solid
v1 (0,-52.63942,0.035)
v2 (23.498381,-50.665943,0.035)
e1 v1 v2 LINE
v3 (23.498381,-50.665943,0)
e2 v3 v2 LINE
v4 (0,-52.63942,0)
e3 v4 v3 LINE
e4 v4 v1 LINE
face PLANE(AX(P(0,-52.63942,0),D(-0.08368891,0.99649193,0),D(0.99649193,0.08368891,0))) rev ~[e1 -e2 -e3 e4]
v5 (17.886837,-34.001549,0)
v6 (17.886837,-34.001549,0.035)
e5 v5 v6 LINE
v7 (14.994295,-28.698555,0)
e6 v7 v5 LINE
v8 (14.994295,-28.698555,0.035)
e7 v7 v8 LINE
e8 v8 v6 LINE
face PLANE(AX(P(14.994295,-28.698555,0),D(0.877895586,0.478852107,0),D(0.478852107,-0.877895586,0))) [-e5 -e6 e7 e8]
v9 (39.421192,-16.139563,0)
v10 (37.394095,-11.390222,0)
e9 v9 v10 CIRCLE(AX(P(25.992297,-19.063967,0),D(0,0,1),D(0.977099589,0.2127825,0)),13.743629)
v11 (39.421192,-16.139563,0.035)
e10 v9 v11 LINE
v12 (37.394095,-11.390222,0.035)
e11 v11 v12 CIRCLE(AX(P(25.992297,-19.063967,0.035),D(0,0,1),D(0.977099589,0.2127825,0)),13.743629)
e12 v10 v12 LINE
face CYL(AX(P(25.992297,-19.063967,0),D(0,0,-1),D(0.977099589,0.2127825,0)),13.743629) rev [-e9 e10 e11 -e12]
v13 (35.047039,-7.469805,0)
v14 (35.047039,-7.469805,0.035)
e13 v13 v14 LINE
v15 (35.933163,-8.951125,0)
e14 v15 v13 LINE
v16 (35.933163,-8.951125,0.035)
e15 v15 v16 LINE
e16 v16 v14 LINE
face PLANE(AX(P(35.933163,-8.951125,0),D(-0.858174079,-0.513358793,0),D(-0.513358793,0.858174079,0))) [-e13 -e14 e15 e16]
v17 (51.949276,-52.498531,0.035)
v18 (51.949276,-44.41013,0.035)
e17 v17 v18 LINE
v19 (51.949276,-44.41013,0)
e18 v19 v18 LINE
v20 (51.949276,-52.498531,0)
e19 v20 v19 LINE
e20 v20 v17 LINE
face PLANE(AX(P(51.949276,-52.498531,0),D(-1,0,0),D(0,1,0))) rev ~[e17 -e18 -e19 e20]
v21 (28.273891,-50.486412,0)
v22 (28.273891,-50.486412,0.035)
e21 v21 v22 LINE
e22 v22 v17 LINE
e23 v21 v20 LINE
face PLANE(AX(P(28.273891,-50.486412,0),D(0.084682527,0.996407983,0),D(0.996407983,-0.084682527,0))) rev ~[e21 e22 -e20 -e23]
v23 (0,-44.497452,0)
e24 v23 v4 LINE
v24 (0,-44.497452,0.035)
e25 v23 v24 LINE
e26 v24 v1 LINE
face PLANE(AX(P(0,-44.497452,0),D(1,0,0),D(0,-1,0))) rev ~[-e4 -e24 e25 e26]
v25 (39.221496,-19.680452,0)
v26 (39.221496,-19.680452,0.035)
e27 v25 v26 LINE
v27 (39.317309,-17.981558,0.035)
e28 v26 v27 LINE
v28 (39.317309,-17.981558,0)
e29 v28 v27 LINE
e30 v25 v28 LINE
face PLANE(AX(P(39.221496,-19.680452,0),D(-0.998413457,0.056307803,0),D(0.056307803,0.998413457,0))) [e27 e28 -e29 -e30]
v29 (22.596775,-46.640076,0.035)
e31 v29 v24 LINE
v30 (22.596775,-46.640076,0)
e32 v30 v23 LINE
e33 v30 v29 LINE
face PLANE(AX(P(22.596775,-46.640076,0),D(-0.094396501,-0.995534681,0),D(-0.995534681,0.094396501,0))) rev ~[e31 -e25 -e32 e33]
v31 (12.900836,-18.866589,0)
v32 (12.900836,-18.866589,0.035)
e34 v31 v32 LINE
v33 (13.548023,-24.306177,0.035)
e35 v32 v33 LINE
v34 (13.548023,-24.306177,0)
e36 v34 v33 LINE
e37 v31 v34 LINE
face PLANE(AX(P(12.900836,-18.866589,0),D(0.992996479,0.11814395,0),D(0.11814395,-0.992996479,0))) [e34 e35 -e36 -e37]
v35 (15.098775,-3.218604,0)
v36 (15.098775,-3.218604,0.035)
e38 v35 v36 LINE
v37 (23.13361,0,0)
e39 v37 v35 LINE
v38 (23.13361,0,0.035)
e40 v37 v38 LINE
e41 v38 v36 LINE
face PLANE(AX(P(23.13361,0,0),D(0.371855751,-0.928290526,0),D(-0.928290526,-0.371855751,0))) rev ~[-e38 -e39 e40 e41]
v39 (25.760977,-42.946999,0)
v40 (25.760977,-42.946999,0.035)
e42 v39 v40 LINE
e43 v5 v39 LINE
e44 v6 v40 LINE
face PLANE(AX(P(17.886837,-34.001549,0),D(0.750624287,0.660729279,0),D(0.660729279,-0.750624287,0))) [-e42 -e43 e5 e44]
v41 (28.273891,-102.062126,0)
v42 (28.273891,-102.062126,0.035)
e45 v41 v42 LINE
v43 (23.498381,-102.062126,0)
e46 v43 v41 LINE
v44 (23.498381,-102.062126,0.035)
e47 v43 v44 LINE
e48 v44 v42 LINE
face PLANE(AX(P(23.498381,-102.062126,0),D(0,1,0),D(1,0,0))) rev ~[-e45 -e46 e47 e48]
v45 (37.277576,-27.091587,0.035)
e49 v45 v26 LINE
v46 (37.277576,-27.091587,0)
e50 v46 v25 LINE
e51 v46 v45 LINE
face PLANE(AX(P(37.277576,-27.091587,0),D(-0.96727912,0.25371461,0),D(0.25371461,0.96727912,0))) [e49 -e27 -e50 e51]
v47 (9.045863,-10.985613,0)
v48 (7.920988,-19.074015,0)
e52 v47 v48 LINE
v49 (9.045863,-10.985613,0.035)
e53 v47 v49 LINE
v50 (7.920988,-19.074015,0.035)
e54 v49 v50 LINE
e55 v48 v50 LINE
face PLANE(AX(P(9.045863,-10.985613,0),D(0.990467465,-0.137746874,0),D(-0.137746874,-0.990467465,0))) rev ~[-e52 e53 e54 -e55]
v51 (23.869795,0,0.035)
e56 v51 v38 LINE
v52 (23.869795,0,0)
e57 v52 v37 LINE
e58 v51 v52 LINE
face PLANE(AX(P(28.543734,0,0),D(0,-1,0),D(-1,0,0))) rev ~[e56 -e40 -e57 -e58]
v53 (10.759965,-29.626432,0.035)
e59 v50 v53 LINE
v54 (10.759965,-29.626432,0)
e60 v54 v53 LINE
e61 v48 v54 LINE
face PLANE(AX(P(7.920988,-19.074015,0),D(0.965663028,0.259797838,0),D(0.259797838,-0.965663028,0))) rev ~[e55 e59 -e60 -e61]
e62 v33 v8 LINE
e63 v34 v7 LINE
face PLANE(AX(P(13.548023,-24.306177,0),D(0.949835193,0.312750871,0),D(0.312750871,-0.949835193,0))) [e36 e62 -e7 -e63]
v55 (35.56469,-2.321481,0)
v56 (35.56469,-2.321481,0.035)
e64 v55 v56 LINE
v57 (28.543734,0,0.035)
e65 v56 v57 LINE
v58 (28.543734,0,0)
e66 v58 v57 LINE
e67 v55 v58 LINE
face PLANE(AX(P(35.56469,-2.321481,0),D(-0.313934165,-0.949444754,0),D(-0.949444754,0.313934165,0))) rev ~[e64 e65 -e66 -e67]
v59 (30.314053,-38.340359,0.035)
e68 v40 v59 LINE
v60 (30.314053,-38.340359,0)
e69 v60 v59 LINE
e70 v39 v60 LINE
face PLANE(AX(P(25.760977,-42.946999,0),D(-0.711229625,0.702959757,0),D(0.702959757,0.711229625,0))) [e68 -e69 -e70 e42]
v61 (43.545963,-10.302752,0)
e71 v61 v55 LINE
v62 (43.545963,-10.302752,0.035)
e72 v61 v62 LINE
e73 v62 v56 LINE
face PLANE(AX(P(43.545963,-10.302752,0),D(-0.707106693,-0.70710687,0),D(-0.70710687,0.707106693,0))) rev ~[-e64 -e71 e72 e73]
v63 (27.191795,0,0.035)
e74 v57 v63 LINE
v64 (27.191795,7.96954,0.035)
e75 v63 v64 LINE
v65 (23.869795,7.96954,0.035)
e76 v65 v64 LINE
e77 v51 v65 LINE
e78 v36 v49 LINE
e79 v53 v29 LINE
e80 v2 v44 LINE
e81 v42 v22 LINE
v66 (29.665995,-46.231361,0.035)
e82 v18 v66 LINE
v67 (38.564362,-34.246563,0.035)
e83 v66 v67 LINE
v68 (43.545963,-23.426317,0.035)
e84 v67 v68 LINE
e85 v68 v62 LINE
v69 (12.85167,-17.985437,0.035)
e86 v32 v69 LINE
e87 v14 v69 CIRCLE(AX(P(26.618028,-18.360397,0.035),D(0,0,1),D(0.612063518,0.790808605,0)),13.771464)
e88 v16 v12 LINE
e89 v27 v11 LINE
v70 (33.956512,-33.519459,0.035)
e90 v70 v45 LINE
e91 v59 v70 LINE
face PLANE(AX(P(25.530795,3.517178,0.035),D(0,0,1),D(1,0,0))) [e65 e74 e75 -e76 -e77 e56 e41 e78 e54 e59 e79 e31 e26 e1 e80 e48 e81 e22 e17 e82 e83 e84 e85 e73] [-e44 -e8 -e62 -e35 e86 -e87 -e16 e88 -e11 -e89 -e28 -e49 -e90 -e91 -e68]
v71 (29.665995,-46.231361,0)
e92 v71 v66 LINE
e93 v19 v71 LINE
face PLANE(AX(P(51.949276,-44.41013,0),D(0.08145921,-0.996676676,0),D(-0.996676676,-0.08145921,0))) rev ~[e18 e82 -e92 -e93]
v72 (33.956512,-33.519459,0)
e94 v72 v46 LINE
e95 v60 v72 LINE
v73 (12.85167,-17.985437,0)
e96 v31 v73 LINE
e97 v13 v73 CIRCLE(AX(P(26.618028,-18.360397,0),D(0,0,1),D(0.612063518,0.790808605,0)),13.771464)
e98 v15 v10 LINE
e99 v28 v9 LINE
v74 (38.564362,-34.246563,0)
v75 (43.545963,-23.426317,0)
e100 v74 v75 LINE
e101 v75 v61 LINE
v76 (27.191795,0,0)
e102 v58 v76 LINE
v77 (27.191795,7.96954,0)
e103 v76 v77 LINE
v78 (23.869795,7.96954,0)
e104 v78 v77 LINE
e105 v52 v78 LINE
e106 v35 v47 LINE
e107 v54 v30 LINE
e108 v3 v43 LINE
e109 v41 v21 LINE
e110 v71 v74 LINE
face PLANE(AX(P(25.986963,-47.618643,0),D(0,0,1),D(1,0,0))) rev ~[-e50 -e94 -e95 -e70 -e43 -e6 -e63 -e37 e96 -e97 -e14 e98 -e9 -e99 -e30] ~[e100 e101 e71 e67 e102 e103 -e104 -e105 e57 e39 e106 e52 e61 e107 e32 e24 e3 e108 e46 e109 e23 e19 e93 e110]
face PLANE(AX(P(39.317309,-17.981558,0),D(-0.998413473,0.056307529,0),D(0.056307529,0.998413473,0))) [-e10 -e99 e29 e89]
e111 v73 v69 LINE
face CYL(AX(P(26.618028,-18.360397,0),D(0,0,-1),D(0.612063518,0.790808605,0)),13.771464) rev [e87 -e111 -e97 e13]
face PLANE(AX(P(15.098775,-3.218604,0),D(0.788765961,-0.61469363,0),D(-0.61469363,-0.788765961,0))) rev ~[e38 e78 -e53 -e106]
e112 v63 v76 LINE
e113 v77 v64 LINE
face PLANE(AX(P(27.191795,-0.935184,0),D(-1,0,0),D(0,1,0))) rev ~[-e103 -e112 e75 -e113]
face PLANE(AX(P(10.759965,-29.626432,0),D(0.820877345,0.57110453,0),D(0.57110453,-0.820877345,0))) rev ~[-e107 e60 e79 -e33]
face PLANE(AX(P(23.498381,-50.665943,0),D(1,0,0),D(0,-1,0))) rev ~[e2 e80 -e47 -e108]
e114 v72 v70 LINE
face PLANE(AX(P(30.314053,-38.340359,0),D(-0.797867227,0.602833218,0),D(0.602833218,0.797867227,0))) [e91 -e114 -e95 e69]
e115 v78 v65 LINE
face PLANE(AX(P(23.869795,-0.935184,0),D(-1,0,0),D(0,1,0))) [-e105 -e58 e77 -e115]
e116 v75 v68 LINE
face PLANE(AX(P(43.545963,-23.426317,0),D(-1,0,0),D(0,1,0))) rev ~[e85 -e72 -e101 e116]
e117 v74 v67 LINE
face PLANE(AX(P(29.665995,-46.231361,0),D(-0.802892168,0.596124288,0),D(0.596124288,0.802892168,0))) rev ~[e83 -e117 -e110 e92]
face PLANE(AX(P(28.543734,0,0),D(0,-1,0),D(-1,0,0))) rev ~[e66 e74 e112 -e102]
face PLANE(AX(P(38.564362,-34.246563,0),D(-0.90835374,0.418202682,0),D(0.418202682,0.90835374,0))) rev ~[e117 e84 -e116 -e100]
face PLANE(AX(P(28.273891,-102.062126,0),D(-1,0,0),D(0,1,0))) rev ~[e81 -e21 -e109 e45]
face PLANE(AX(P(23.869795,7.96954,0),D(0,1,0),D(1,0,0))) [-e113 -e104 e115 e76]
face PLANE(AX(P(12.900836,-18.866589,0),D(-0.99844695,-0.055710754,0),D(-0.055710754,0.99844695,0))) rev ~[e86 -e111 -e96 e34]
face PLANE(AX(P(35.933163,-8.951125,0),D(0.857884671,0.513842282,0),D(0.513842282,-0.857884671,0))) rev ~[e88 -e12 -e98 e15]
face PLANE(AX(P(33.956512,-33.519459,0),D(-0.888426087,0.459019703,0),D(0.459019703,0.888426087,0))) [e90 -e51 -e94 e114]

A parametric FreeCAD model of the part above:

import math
import FreeCAD as App
import Part
import Sketcher
from FreeCAD import Vector
Q = App.Units.Quantity


def add_polygon(sketch, points):
    """Adds a closed chain of lines whose ends are joined by coincident constraints."""
    first, n = sketch.GeometryCount, len(points)
    for a, b in zip(points, points[1:] + points[:1]):
        sketch.addGeometry(Part.LineSegment(App.Vector(*a, 0), App.Vector(*b, 0)), False)
    for i in range(n):
        sketch.addConstraint(Sketcher.Constraint("Coincident", first + i, 2, first + (i + 1) % n, 1))

doc = App.newDocument("Part")
body = doc.addObject("PartDesign::Body", "Body")

# Sketch on XY plane
sketch1 = doc.addObject("Sketcher::SketchObject", "Sketch")
body.addObject(sketch1)
sketch1.AttachmentSupport = (doc.XY_Plane, [""])
sketch1.MapMode = "FlatFace"
add_polygon(sketch1, [(23.869795, 7.96954), (23.869795, -0.935184), (27.191795, -0.935184), (27.191795, 7.96954)])  # lines 0-3
sketch1.addConstraint(Sketcher.Constraint("Vertical", 0))
sketch1.addConstraint(Sketcher.Constraint("Horizontal", 1))
sketch1.addConstraint(Sketcher.Constraint("Vertical", 2))
sketch1.addConstraint(Sketcher.Constraint("Horizontal", 3))
sketch1.addConstraint(Sketcher.Constraint("DistanceX", 1, 1, 1, 2, 3.322))
sketch1.addConstraint(Sketcher.Constraint("DistanceY", 0, 2, 0, 1, 8.904724))
sketch1.addConstraint(Sketcher.Constraint("DistanceY", -1, 1, 2, 2, 7.96954))
sketch1.addConstraint(Sketcher.Constraint("DistanceX", -1, 1, 0, 2, 23.869795))
pad1 = doc.addObject("PartDesign::Pad", "Pad")
body.addObject(pad1)
pad1.Profile = sketch1
pad1.Length = 0.035
body2 = doc.addObject("PartDesign::Body", "Body001")

# Sketch on XY plane
sketch2 = doc.addObject("Sketcher::SketchObject", "Sketch001")
body2.addObject(sketch2)
sketch2.AttachmentSupport = (doc.getObject("XY_Plane001"), [""])
sketch2.MapMode = "FlatFace"
add_polygon(sketch2, [(23.498381, -102.062126), (28.273891, -102.062126), (28.273891, -50.486412), (51.949276, -52.498531), (51.949276, -44.41013), (29.665995, -46.231361), (38.564362, -34.246563), (43.545963, -23.426317), (43.545963, -10.302752), (35.56469, -2.321481), (28.543734, 0), (23.13361, 0), (15.098775, -3.218604), (9.045863, -10.985613), (7.920988, -19.074015), (10.759965, -29.626432), (22.596775, -46.640076), (0, -44.497452), (0, -52.63942), (23.498381, -50.665943)])  # lines 0-19
sketch2.addGeometry(Part.LineSegment(Vector(13.548023, -24.306177, 0), Vector(12.900836, -18.866589, 0)), False)  # 20
sketch2.addGeometry(Part.LineSegment(Vector(12.900836, -18.866589, 0), Vector(12.85167, -17.985437, 0)), False)  # 21
sketch2.addGeometry(Part.ArcOfCircle(Part.Circle(Vector(26.618028, -18.360397, 0), Vector(0, 0, 1), 13.771464), math.radians(52.261141), math.radians(178.439796)), False)  # 22
sketch2.addGeometry(Part.LineSegment(Vector(35.047039, -7.469805, 0), Vector(35.933163, -8.951125, 0)), False)  # 23
sketch2.addGeometry(Part.LineSegment(Vector(35.933163, -8.951125, 0), Vector(37.394095, -11.390222, 0)), False)  # 24
sketch2.addGeometry(Part.ArcOfCircle(Part.Circle(Vector(25.992297, -19.063967, 0), Vector(0, 0, 1), 13.743629), math.radians(12.285464), math.radians(33.941712)), False)  # 25
sketch2.addGeometry(Part.LineSegment(Vector(39.421192, -16.139563, 0), Vector(39.317309, -17.981558, 0)), False)  # 26
sketch2.addGeometry(Part.LineSegment(Vector(39.317309, -17.981558, 0), Vector(39.221496, -19.680452, 0)), False)  # 27
sketch2.addGeometry(Part.LineSegment(Vector(39.221496, -19.680452, 0), Vector(37.277576, -27.091587, 0)), False)  # 28
sketch2.addGeometry(Part.LineSegment(Vector(37.277576, -27.091587, 0), Vector(33.956512, -33.519459, 0)), False)  # 29
sketch2.addGeometry(Part.LineSegment(Vector(33.956512, -33.519459, 0), Vector(30.314053, -38.340359, 0)), False)  # 30
sketch2.addGeometry(Part.LineSegment(Vector(30.314053, -38.340359, 0), Vector(25.760977, -42.946999, 0)), False)  # 31
sketch2.addGeometry(Part.LineSegment(Vector(25.760977, -42.946999, 0), Vector(17.886837, -34.001549, 0)), False)  # 32
sketch2.addGeometry(Part.LineSegment(Vector(17.886837, -34.001549, 0), Vector(14.994295, -28.698555, 0)), False)  # 33
sketch2.addGeometry(Part.LineSegment(Vector(14.994295, -28.698555, 0), Vector(13.548023, -24.306177, 0)), False)  # 34
sketch2.addConstraint(Sketcher.Constraint("Coincident", 20, 2, 21, 1))
sketch2.addConstraint(Sketcher.Constraint("Coincident", 21, 2, 22, 2))
sketch2.addConstraint(Sketcher.Constraint("Coincident", 22, 1, 23, 1))
sketch2.addConstraint(Sketcher.Constraint("Coincident", 23, 2, 24, 1))
sketch2.addConstraint(Sketcher.Constraint("Coincident", 24, 2, 25, 2))
sketch2.addConstraint(Sketcher.Constraint("Coincident", 25, 1, 26, 1))
sketch2.addConstraint(Sketcher.Constraint("Coincident", 26, 2, 27, 1))
sketch2.addConstraint(Sketcher.Constraint("Coincident", 27, 2, 28, 1))
sketch2.addConstraint(Sketcher.Constraint("Coincident", 28, 2, 29, 1))
sketch2.addConstraint(Sketcher.Constraint("Coincident", 29, 2, 30, 1))
sketch2.addConstraint(Sketcher.Constraint("Coincident", 30, 2, 31, 1))
sketch2.addConstraint(Sketcher.Constraint("Coincident", 31, 2, 32, 1))
sketch2.addConstraint(Sketcher.Constraint("Coincident", 32, 2, 33, 1))
sketch2.addConstraint(Sketcher.Constraint("Coincident", 33, 2, 34, 1))
sketch2.addConstraint(Sketcher.Constraint("Coincident", 34, 2, 20, 1))
sketch2.addConstraint(Sketcher.Constraint("Horizontal", 0))
sketch2.addConstraint(Sketcher.Constraint("Vertical", 1))
sketch2.addConstraint(Sketcher.Constraint("Vertical", 3))
sketch2.addConstraint(Sketcher.Constraint("Vertical", 7))
sketch2.addConstraint(Sketcher.Constraint("Horizontal", 10))
sketch2.addConstraint(Sketcher.Constraint("Vertical", 17))
sketch2.addConstraint(Sketcher.Constraint("Vertical", 19))
sketch2.addConstraint(Sketcher.Constraint("PointOnObject", 9, 2, -1))
sketch2.addConstraint(Sketcher.Constraint("PointOnObject", 16, 2, -2))
sketch2.addConstraint(Sketcher.Constraint("Parallel", 26, 27))
sketch2.addConstraint(Sketcher.Constraint("Angle", 8, Q("135.000007 deg")))
sketch2.addConstraint(Sketcher.Constraint("Radius", 25, 13.743629))
sketch2.addConstraint(Sketcher.Constraint("DistanceY", 3, 1, 3, 2, 8.088401))
sketch2.addConstraint(Sketcher.Constraint("DistanceY", 31, 2, -1, 1, 42.946999))
sketch2.addConstraint(Sketcher.Constraint("Radius", 22, 13.771464))
sketch2.addConstraint(Sketcher.Constraint("DistanceX", 20, 2, 32, 2, 4.986001))
sketch2.addConstraint(Sketcher.Constraint("DistanceX", 0, 1, 0, 2, 4.77551))
sketch2.addConstraint(Sketcher.Constraint("DistanceX", 5, 2, 6, 2, 4.981601))
sketch2.addConstraint(Sketcher.Constraint("DistanceY", 13, 2, 12, 2, 8.088402))
sketch2.addConstraint(Sketcher.Constraint("DistanceX", 12, 2, 14, 2, 1.714102))
sketch2.addConstraint(Sketcher.Constraint("DistanceX", 23, 2, 7, 2, 7.6128))
sketch2.addConstraint(Sketcher.Constraint("DistanceX", 24, 2, 27, 2, 1.827401))
sketch2.addConstraint(Sketcher.Constraint("DistanceY", 27, 2, 7, 2, 9.3777))
sketch2.addConstraint(Sketcher.Constraint("DistanceY", 30, 2, 29, 2, 4.8209))
sketch2.addConstraint(Sketcher.Constraint("DistanceX", 15, 2, 31, 2, 3.164202))
sketch2.addConstraint(Sketcher.Constraint("Distance", 6, 11.91193))
sketch2.addConstraint(Sketcher.Constraint("Distance", 12, 9.847039))
sketch2.addConstraint(Sketcher.Constraint("Distance", 14, 10.927639))
sketch2.addConstraint(Sketcher.Constraint("Distance", 15, 20.726171))
sketch2.addConstraint(Sketcher.Constraint("Distance", 16, 22.698129))
sketch2.addConstraint(Sketcher.Constraint("Distance", 23, 1.72613))
sketch2.addConstraint(Sketcher.Constraint("Distance", 31, 6.477008))
sketch2.addConstraint(Sketcher.Constraint("Distance", 34, 4.624358))
sketch2.addConstraint(Sketcher.Constraint("DistanceX", 10, 2, 10, 1, 5.410124))
sketch2.addConstraint(Sketcher.Constraint("DistanceY", 1, 1, 1, 2, 51.575714))
sketch2.addConstraint(Sketcher.Constraint("DistanceY", 7, 1, 7, 2, 13.123565))
sketch2.addConstraint(Sketcher.Constraint("DistanceY", 17, 2, 17, 1, 8.141968))
sketch2.addConstraint(Sketcher.Constraint("DistanceY", 19, 2, 19, 1, 51.396183))
sketch2.addConstraint(Sketcher.Constraint("DistanceX", -1, 1, 22, 3, 26.618028))
sketch2.addConstraint(Sketcher.Constraint("DistanceX", -1, 1, 0, 2, 28.273891))
sketch2.addConstraint(Sketcher.Constraint("DistanceY", 2, 2, -1, 1, 52.498531))
sketch2.addConstraint(Sketcher.Constraint("DistanceY", 4, 2, -1, 1, 46.231361))
sketch2.addConstraint(Sketcher.Constraint("DistanceX", -1, 1, 8, 2, 35.56469))
sketch2.addConstraint(Sketcher.Constraint("DistanceY", 8, 2, -1, 1, 2.321481))
sketch2.addConstraint(Sketcher.Constraint("DistanceX", -1, 1, 10, 2, 23.13361))
sketch2.addConstraint(Sketcher.Constraint("DistanceX", -1, 1, 13, 2, 7.920988))
sketch2.addConstraint(Sketcher.Constraint("DistanceY", 17, 2, -1, 1, 52.63942))
sketch2.addConstraint(Sketcher.Constraint("DistanceY", 20, 2, -1, 1, 18.866589))
sketch2.addConstraint(Sketcher.Constraint("DistanceX", -1, 1, 21, 2, 12.85167))
sketch2.addConstraint(Sketcher.Constraint("DistanceX", -1, 1, 22, 1, 35.047039))
sketch2.addConstraint(Sketcher.Constraint("DistanceX", -1, 1, 26, 2, 39.317309))
sketch2.addConstraint(Sketcher.Constraint("DistanceY", 27, 2, -1, 1, 19.680452))
sketch2.addConstraint(Sketcher.Constraint("DistanceX", -1, 1, 29, 2, 33.956512))
sketch2.addConstraint(Sketcher.Constraint("DistanceY", 29, 2, -1, 1, 33.519459))
sketch2.addConstraint(Sketcher.Constraint("DistanceY", 32, 2, -1, 1, 34.001549))
sketch2.addConstraint(Sketcher.Constraint("DistanceX", 25, 3, 22, 3, 0.625731))
sketch2.addConstraint(Sketcher.Constraint("DistanceY", 25, 3, 22, 3, 0.70357))
sketch2.addConstraint(Sketcher.Constraint("DistanceY", 0, 2, 25, 3, 82.998159))
sketch2.addConstraint(Sketcher.Constraint("DistanceY", 2, 2, 1, 2, 2.012119))
sketch2.addConstraint(Sketcher.Constraint("DistanceX", 25, 3, 2, 2, 25.956979))
sketch2.addConstraint(Sketcher.Constraint("DistanceX", 4, 2, 3, 2, 22.283281))
sketch2.addConstraint(Sketcher.Constraint("DistanceX", 11, 2, 9, 2, 13.444959))
sketch2.addConstraint(Sketcher.Constraint("DistanceX", 12, 2, 11, 2, 6.052912))
sketch2.addConstraint(Sketcher.Constraint("DistanceY", 13, 2, 25, 3, 0.010048))
sketch2.addConstraint(Sketcher.Constraint("DistanceX", 14, 2, 20, 2, 2.140871))
sketch2.addConstraint(Sketcher.Constraint("DistanceX", 23, 2, 24, 2, 1.460932))
sketch2.addConstraint(Sketcher.Constraint("DistanceY", 25, 1, 24, 2, 4.749341))
sketch2.addConstraint(Sketcher.Constraint("DistanceY", 28, 2, 6, 2, 3.66527))
sketch2.addConstraint(Sketcher.Constraint("DistanceX", 28, 2, 27, 2, 1.94392))
sketch2.addConstraint(Sketcher.Constraint("DistanceX", 14, 2, 33, 2, 4.23433))
sketch2.addConstraint(Sketcher.Constraint("DistanceY", 33, 2, 13, 2, 9.62454))
sketch2.addConstraint(Sketcher.Constraint("DistanceX", 34, 2, 33, 2, 1.446272))
pad2 = doc.addObject("PartDesign::Pad", "Pad001")
body2.addObject(pad2)
pad2.Profile = sketch2
pad2.Length = 0.035
doc.recompute()

boolean = doc.addObject("PartDesign::Boolean", "Boolean")
body2.addObject(boolean)
boolean.Type = "Fuse"
boolean.addObjects([body])

doc.recompute()
